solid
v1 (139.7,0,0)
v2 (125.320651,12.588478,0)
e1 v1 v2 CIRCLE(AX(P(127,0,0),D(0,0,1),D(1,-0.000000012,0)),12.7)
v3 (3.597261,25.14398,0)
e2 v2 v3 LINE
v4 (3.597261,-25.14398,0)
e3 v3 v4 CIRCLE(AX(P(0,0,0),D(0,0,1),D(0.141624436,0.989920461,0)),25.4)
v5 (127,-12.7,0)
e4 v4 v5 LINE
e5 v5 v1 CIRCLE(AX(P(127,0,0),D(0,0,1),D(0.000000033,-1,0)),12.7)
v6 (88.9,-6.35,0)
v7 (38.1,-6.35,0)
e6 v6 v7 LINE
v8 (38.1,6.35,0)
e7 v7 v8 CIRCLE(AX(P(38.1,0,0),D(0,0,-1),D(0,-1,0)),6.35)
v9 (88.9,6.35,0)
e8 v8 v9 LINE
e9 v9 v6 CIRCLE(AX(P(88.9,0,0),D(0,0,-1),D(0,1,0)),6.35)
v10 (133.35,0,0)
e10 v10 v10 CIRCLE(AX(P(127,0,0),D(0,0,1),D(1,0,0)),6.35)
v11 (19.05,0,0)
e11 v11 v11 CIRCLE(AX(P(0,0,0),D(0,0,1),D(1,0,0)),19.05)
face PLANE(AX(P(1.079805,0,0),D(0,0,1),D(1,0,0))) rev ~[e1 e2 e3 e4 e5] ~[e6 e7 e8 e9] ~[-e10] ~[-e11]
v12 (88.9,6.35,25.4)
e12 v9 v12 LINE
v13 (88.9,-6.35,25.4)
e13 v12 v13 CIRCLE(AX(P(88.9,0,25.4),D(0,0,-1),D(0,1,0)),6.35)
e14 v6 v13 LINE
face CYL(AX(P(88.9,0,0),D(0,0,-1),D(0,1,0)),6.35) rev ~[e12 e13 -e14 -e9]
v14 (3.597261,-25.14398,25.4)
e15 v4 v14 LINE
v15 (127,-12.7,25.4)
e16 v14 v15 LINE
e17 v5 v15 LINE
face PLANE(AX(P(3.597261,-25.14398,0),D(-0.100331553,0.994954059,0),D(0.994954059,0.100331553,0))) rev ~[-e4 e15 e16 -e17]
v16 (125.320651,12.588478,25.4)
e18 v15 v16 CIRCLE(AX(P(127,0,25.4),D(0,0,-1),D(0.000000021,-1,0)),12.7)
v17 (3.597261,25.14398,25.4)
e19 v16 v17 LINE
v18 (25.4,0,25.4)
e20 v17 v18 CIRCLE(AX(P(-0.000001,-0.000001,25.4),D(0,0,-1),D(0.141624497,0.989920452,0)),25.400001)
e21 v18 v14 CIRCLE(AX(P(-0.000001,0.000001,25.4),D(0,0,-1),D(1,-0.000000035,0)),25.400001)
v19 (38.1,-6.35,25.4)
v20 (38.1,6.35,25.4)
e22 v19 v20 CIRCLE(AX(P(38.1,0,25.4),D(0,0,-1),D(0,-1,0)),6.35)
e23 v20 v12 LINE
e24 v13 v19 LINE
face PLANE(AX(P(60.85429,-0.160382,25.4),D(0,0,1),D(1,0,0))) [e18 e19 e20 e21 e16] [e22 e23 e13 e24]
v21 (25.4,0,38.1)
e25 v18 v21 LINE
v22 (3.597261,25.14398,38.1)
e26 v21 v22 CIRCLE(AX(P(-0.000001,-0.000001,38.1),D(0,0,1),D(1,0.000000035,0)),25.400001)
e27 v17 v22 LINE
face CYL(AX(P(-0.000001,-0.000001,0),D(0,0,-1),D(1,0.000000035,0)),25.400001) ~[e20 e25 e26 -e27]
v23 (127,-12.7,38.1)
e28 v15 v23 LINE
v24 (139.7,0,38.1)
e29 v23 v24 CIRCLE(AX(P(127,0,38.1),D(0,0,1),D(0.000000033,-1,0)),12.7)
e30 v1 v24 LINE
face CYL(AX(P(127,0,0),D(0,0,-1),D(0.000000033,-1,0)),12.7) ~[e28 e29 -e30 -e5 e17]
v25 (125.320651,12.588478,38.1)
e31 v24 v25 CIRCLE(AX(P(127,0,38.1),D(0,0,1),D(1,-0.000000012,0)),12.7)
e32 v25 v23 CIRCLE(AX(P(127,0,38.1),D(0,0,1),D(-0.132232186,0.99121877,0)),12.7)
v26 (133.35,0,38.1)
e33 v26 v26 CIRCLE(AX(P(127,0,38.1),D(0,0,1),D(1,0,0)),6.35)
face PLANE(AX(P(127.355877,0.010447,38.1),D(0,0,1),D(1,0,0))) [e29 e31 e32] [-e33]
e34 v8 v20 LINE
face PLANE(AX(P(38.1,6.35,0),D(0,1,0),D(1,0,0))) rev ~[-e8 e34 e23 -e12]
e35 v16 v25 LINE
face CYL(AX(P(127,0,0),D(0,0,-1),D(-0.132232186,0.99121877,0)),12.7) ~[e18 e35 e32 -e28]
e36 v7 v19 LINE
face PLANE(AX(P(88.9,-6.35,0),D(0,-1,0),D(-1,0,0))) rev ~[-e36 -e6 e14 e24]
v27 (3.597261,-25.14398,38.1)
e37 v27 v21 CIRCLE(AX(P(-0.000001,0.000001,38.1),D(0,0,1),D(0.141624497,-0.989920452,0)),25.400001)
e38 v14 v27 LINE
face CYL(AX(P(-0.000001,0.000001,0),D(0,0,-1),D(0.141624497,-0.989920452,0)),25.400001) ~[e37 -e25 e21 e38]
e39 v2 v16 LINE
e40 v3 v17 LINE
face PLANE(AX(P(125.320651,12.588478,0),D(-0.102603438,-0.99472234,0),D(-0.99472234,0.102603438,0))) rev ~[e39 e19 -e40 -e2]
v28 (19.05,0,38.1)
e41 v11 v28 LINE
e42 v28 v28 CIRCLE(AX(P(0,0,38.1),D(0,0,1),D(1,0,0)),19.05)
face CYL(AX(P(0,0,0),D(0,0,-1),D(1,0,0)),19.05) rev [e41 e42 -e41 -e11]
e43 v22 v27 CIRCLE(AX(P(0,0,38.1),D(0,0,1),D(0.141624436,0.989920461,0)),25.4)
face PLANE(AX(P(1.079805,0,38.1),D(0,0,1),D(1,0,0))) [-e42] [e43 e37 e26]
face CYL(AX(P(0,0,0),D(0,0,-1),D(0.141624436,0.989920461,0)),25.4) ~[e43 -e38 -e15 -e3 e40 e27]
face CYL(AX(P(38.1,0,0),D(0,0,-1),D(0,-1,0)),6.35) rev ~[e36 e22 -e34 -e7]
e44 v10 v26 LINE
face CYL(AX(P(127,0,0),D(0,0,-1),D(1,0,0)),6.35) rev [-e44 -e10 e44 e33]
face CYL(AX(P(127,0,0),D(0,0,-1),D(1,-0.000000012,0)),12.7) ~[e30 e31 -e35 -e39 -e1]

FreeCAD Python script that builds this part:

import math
import FreeCAD as App
import Part
import Sketcher

V = App.Vector
Q = App.Units.Quantity

doc = App.newDocument("Part")
params = doc.addObject("Spreadsheet::Sheet", "Params")
for row, (alias, value) in enumerate([
    ("sketch1_radius", "1.0000001 in"),
    ("sketch1_radius2", "0.5 in"),
    ("sketch1_width", "2 in"),
    ("sketch1_radius3", "0.25 in"),
    ("pad1_length", "1 in"),
    ("sketch2_radius", "1.0000001 in"),
    ("sketch2_diameter", "1.5 in"),
    ("sketch2_diameter2", "0.5 in"),
    ("sketch2_radius2", "0.5 in"),
    ("pad2_length", "1.5 in"),
], start=1):
    params.set(f"A{row}", alias)
    params.set(f"B{row}", "=" + value)
    params.setAlias(f"B{row}", alias)

body = doc.addObject("PartDesign::Body", "Body")

sketch1 = doc.addObject("Sketcher::SketchObject", "Sketch")
body.addObject(sketch1)
sketch1.AttachmentSupport = (doc.XY_Plane, [""])
sketch1.MapMode = "FlatFace"
sketch1.addGeometry([
    Part.ArcOfCircle(Part.Circle(V(-0.000001, -0.000001, 0), V(0, 0, 1), 25.400001), math.radians(0.000002), math.radians(81.85814)),
    Part.ArcOfCircle(Part.Circle(V(-0.000001, 0.000001, 0), V(0, 0, 1), 25.400001), math.radians(-81.85814), math.radians(-0.000002)),
    Part.LineSegment(V(3.597261, -25.14398, 0), V(127, -12.7, 0)),
    Part.ArcOfCircle(Part.Circle(V(127, 0, 0), V(0, 0, 1), 12.7), math.radians(97.598601), math.radians(270.000001)),
    Part.LineSegment(V(125.320651, 12.588478, 0), V(3.597261, 25.14398, 0)),
    Part.LineSegment(V(88.9, -6.35, 0), V(38.1, -6.35, 0)),
    Part.ArcOfCircle(Part.Circle(V(38.1, 0, 0), V(0, 0, 1), 6.35), math.radians(90), math.radians(270)),
    Part.LineSegment(V(38.1, 6.35, 0), V(88.9, 6.35, 0)),
    Part.ArcOfCircle(Part.Circle(V(88.9, 0, 0), V(0, 0, 1), 6.35), math.radians(-90), math.radians(90)),
], False)
sketch1.addConstraint([
    Sketcher.Constraint("Tangent", 0, 1, 1, 2),
    Sketcher.Constraint("Coincident", 1, 1, 2, 1),
    Sketcher.Constraint("Coincident", 2, 2, 3, 2),
    Sketcher.Constraint("Coincident", 3, 1, 4, 1),
    Sketcher.Constraint("Coincident", 4, 2, 0, 2),
    Sketcher.Constraint("Tangent", 5, 2, 6, 2),
    Sketcher.Constraint("Tangent", 6, 1, 7, 1),
    Sketcher.Constraint("Tangent", 7, 2, 8, 2),
    Sketcher.Constraint("Tangent", 8, 1, 5, 1),
    Sketcher.Constraint("Horizontal", 5),
    Sketcher.Constraint("Horizontal", 7),
    Sketcher.Constraint("Coincident", 0, 3, -1, 1),
    Sketcher.Constraint("Equal", 0, 1),
    Sketcher.Constraint("PointOnObject", 3, 3, -1),
    Sketcher.Constraint("PointOnObject", 6, 3, -1),
    Sketcher.Constraint("PointOnObject", 0, 1, -1),
    Sketcher.Constraint("Vertical", 3, 3, 2, 2),
    Sketcher.Constraint("Vertical", 1, 1, 4, 2),
    Sketcher.Constraint("Radius", 0, Q("1.0000001 in")),
    Sketcher.Constraint("Radius", 3, Q("0.5 in")),
    Sketcher.Constraint("DistanceX", 5, 2, 5, 1, Q("2 in")),
    Sketcher.Constraint("Radius", 6, Q("0.25 in")),
    Sketcher.Constraint("DistanceX", -1, 1, 3, 3, Q("5 in")),
    Sketcher.Constraint("DistanceX", -1, 1, 6, 3, Q("1.5 in")),
    Sketcher.Constraint("Distance", 2, 124.02858),
    Sketcher.Constraint("DistanceX", -1, 1, 3, 1, 125.320651),
])
sketch1.setExpression("Constraints[18]", "Params.sketch1_radius")
sketch1.setExpression("Constraints[19]", "Params.sketch1_radius2")
sketch1.setExpression("Constraints[20]", "Params.sketch1_width")
sketch1.setExpression("Constraints[21]", "Params.sketch1_radius3")
pad1 = doc.addObject("PartDesign::Pad", "Pad")
body.addObject(pad1)
pad1.Profile = sketch1
pad1.setExpression("Length", "Params.pad1_length")

sketch2 = doc.addObject("Sketcher::SketchObject", "Sketch001")
body.addObject(sketch2)
sketch2.AttachmentSupport = (doc.XY_Plane, [""])
sketch2.MapMode = "FlatFace"
sketch2.addGeometry([
    Part.ArcOfCircle(Part.Circle(V(-0.000001, 0.000001, 0), V(0, 0, 1), 25.400001), math.radians(-81.85814), math.radians(-0.000002)),
    Part.ArcOfCircle(Part.Circle(V(-0.000001, -0.000001, 0), V(0, 0, 1), 25.400001), math.radians(0.000002), math.radians(81.85814)),
    Part.ArcOfCircle(Part.Circle(V(0, 0, 0), V(0, 0, 1), 25.4), math.radians(81.858144), math.radians(278.141856)),
    Part.Circle(V(0, 0, 0), V(0, 0, 1), 19.05),
    Part.ArcOfCircle(Part.Circle(V(127, 0, 0), V(0, 0, 1), 12.7), math.radians(-0.000001), math.radians(97.598604)),
    Part.ArcOfCircle(Part.Circle(V(127, 0, 0), V(0, 0, 1), 12.7), math.radians(97.598601), math.radians(270.000001)),
    Part.ArcOfCircle(Part.Circle(V(127, 0, 0), V(0, 0, 1), 12.7), math.radians(-89.999998), math.radians(-0.000002)),
    Part.Circle(V(127, 0, 0), V(0, 0, 1), 6.35),
], False)
sketch2.addConstraint([
    Sketcher.Constraint("Tangent", 0, 2, 1, 1),
    Sketcher.Constraint("Tangent", 1, 2, 2, 1),
    Sketcher.Constraint("Tangent", 2, 2, 0, 1),
    Sketcher.Constraint("Tangent", 4, 2, 5, 1),
    Sketcher.Constraint("Tangent", 5, 2, 6, 1),
    Sketcher.Constraint("Tangent", 6, 2, 4, 1),
    Sketcher.Constraint("Coincident", 0, 3, -1, 1),
    Sketcher.Constraint("Coincident", 3, 3, -1, 1),
    Sketcher.Constraint("Coincident", 7, 3, 4, 3),
    Sketcher.Constraint("PointOnObject", 4, 3, -1),
    Sketcher.Constraint("PointOnObject", 0, 2, -1),
    Sketcher.Constraint("PointOnObject", 6, 2, -1),
    Sketcher.Constraint("Vertical", 1, 2, 2, 2),
    Sketcher.Constraint("Vertical", 7, 3, 5, 2),
    Sketcher.Constraint("Radius", 0, Q("1.0000001 in")),
    Sketcher.Constraint("Diameter", 3, Q("1.5 in")),
    Sketcher.Constraint("Diameter", 7, Q("0.5 in")),
    Sketcher.Constraint("Radius", 4, Q("0.5 in")),
    Sketcher.Constraint("DistanceX", -1, 1, 4, 3, Q("5 in")),
    Sketcher.Constraint("DistanceX", -1, 1, 1, 2, 3.597261),
    Sketcher.Constraint("DistanceX", -1, 1, 4, 2, 125.320651),
])
sketch2.setExpression("Constraints[14]", "Params.sketch2_radius")
sketch2.setExpression("Constraints[15]", "Params.sketch2_diameter")
sketch2.setExpression("Constraints[16]", "Params.sketch2_diameter2")
sketch2.setExpression("Constraints[17]", "Params.sketch2_radius2")
pad2 = doc.addObject("PartDesign::Pad", "Pad001")
body.addObject(pad2)
pad2.Profile = sketch2
pad2.setExpression("Length", "Params.pad2_length")

doc.recompute()
